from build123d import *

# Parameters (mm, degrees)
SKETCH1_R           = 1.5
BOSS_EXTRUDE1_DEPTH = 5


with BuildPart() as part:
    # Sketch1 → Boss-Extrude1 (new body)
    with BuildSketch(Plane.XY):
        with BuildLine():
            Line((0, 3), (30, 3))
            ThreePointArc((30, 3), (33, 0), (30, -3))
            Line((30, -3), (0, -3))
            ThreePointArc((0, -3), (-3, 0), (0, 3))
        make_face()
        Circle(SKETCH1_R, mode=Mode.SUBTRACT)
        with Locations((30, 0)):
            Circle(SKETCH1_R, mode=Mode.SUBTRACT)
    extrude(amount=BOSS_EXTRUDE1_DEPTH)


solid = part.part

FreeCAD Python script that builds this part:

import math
import FreeCAD as App
import Part
import Sketcher

doc = App.newDocument("Part")
params = doc.addObject("Spreadsheet::Sheet", "Params")
for row, (alias, value) in enumerate([
    ("sketch1_diameter", "3 mm"),
    ("sketch1_radius", "3 mm"),
    ("sketch1_width", "30 mm"),
    ("pad1_length", "5 mm"),
], start=1):
    params.set(f"A{row}", alias)
    params.set(f"B{row}", "=" + value)
    params.setAlias(f"B{row}", alias)

body = doc.addObject("PartDesign::Body", "Body")

# Sketch on XY plane
sketch1 = body.newObject("Sketcher::SketchObject", "Sketch")
sketch1.AttachmentSupport = (doc.getObject("XY_Plane"), [""])
sketch1.MapMode = "FlatFace"
sketch1.addGeometry([
    Part.LineSegment(App.Vector(30, 3, 0), App.Vector(0, 3, 0)),  # 0
    Part.ArcOfCircle(Part.Circle(App.Vector(0, 0, 0), App.Vector(0, 0, 1), 3), math.radians(90), math.radians(270)),  # 1
    Part.LineSegment(App.Vector(0, -3, 0), App.Vector(30, -3, 0)),  # 2
    Part.ArcOfCircle(Part.Circle(App.Vector(30, 0, 0), App.Vector(0, 0, 1), 3), math.radians(-90), math.radians(90)),  # 3
    Part.Circle(App.Vector(30, 0, 0), App.Vector(0, 0, 1), 1.5),  # 4
    Part.Circle(App.Vector(0, 0, 0), App.Vector(0, 0, 1), 1.5),  # 5
], False)
sketch1.addConstraint([
    Sketcher.Constraint("Tangent", 0, 2, 1, 1),
    Sketcher.Constraint("Tangent", 1, 2, 2, 1),
    Sketcher.Constraint("Tangent", 2, 2, 3, 1),
    Sketcher.Constraint("Tangent", 3, 2, 0, 1),
    Sketcher.Constraint("Horizontal", 0),
    Sketcher.Constraint("Horizontal", 2),
    Sketcher.Constraint("Coincident", 1, 3, -1, 1),
    Sketcher.Constraint("Coincident", 5, 3, -1, 1),
    Sketcher.Constraint("Coincident", 4, 3, 3, 3),
    Sketcher.Constraint("Equal", 4, 5),
    Sketcher.Constraint("Diameter", 4, 3.0),
    Sketcher.Constraint("Radius", 1, 3.0),
    Sketcher.Constraint("DistanceX", 0, 2, 0, 1, 30.0),
])
sketch1.setExpression("Constraints[10]", "Params.sketch1_diameter")
sketch1.setExpression("Constraints[11]", "Params.sketch1_radius")
sketch1.setExpression("Constraints[12]", "Params.sketch1_width")
pad1 = body.newObject("PartDesign::Pad", "Pad")
pad1.Profile = sketch1
pad1.setExpression("Length", "Params.pad1_length")

doc.recompute()
